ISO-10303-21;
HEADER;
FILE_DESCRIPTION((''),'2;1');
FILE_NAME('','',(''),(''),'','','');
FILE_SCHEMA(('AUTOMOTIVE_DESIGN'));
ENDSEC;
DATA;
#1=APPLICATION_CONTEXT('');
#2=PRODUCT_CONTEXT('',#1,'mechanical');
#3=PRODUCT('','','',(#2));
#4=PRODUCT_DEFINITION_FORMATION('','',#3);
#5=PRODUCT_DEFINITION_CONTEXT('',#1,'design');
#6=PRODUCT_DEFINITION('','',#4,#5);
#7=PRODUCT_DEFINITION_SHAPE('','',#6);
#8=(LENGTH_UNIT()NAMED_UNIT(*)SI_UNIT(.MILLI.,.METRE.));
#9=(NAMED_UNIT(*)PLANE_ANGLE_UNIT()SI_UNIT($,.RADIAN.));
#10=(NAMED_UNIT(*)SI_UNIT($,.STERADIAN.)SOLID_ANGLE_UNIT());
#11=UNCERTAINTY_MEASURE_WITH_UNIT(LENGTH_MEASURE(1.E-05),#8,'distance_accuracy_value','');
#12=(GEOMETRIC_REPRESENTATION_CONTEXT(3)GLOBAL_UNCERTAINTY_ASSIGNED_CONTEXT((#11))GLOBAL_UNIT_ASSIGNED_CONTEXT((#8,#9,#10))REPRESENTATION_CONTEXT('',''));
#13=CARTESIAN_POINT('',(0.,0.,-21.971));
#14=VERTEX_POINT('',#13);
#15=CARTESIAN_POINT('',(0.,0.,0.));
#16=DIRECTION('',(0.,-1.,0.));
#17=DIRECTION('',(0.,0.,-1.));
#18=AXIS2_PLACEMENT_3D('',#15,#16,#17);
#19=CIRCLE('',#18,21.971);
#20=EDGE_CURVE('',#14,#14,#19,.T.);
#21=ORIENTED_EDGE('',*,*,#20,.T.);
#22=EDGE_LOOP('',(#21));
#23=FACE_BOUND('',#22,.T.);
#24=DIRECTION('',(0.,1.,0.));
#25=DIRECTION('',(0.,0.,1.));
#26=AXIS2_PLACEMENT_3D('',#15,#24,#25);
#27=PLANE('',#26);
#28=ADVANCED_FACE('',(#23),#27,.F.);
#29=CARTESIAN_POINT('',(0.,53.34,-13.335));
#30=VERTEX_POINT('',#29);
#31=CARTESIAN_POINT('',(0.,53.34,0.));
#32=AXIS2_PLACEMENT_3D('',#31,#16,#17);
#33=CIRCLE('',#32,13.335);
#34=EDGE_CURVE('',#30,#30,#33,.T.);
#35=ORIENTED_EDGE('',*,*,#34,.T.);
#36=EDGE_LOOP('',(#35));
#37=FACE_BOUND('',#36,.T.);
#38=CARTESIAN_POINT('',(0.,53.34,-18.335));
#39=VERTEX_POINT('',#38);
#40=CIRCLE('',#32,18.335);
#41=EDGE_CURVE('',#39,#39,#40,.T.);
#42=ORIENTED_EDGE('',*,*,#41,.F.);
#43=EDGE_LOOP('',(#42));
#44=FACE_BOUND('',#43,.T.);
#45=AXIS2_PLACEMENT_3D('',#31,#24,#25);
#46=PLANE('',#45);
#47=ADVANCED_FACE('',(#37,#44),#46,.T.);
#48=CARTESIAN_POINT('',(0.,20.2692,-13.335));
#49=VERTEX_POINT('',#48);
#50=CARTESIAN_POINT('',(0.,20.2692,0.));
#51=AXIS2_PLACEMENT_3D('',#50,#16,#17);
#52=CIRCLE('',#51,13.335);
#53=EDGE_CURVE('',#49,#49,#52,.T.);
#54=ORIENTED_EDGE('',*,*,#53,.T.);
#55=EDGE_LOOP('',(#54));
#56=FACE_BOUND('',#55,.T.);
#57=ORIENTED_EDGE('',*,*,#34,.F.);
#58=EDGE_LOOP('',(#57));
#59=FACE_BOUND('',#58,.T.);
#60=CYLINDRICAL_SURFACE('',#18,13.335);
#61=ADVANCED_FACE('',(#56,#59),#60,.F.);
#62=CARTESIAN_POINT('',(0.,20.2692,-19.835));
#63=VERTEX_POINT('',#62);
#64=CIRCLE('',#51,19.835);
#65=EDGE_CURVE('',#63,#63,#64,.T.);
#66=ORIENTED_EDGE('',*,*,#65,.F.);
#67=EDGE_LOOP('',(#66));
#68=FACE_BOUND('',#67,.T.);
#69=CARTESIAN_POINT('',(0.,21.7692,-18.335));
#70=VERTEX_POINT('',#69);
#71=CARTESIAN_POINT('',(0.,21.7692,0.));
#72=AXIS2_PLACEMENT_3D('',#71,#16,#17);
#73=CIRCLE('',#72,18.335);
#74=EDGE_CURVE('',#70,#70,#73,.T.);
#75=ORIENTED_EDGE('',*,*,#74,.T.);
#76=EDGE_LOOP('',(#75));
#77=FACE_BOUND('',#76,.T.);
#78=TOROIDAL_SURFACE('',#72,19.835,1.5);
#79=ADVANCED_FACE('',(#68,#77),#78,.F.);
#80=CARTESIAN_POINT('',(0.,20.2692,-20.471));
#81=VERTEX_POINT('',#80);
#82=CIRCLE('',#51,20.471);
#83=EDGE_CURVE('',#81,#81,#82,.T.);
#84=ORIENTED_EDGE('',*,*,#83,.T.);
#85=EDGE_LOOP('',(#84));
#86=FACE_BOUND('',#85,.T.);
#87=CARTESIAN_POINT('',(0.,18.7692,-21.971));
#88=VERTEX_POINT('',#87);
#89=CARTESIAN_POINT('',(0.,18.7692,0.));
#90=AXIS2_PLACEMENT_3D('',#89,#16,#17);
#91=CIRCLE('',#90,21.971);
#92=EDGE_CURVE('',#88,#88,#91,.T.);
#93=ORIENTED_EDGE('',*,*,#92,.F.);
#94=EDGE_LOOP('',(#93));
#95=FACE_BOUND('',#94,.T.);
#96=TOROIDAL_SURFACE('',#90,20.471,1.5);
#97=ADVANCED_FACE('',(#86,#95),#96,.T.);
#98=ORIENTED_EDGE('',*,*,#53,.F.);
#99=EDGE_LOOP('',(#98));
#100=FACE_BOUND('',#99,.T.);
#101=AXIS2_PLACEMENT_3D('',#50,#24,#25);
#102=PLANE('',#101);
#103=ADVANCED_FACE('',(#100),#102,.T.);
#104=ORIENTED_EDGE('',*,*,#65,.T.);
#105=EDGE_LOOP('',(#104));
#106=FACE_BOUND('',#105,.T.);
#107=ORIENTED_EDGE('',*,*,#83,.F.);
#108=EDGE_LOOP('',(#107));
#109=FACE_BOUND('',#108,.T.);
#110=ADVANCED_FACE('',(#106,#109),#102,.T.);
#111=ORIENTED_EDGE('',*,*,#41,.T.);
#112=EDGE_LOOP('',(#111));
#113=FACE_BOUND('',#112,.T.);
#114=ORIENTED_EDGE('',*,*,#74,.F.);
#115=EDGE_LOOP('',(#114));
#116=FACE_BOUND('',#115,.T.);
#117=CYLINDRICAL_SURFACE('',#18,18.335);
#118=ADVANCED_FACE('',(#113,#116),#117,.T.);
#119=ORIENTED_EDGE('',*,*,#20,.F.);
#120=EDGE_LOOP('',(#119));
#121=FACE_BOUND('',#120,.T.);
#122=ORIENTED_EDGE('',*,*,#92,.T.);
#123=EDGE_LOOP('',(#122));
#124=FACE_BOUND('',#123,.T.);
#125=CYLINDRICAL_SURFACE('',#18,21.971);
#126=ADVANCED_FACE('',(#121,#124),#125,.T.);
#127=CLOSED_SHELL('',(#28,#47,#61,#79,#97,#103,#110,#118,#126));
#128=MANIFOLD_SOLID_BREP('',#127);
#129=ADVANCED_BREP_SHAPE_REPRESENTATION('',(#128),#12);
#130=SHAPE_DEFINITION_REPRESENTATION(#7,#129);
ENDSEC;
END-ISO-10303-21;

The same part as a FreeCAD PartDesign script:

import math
import FreeCAD as App
import Part
import Sketcher

V = App.Vector
Q = App.Units.Quantity

doc = App.newDocument("Part")
body = doc.addObject("PartDesign::Body", "Body")

# Sketch on XY plane
sketch1 = doc.addObject("Sketcher::SketchObject", "Sketch")
body.addObject(sketch1)
sketch1.AttachmentSupport = (doc.XY_Plane, [""])
sketch1.MapMode = "FlatFace"
sketch1.addGeometry([
    Part.LineSegment(V(0, 20.3, 0), V(-13.3, 20.3, 0)),  # 0
    Part.LineSegment(V(-13.3, 20.3, 0), V(-13.3, 53.3, 0)),  # 1
    Part.LineSegment(V(-13.3, 53.3, 0), V(-18.3, 53.3, 0)),  # 2
    Part.LineSegment(V(-18.3, 53.3, 0), V(-18.3, 21.8, 0)),  # 3
    Part.ArcOfCircle(Part.Circle(V(-19.8, 21.8, 0), V(0, 0, 1), 1.5), math.radians(-90), math.radians(0)),  # 4
    Part.LineSegment(V(-19.8, 20.3, 0), V(-20.5, 20.3, 0)),  # 5
    Part.ArcOfCircle(Part.Circle(V(-20.5, 18.8, 0), V(0, 0, 1), 1.5), math.radians(90), math.radians(180)),  # 6
    Part.LineSegment(V(-22, 18.8, 0), V(-22, 0, 0)),  # 7
    Part.LineSegment(V(-22, 0, 0), V(0, 0, 0)),  # 8
    Part.LineSegment(V(0, 0, 0), V(0, 20.3, 0)),  # 9
], False)
sketch1.addConstraint([
    Sketcher.Constraint("Coincident", 0, 2, 1, 1),
    Sketcher.Constraint("Coincident", 1, 2, 2, 1),
    Sketcher.Constraint("Coincident", 2, 2, 3, 1),
    Sketcher.Constraint("Tangent", 3, 2, 4, 2),
    Sketcher.Constraint("Tangent", 4, 1, 5, 1),
    Sketcher.Constraint("Tangent", 5, 2, 6, 1),
    Sketcher.Constraint("Tangent", 6, 2, 7, 1),
    Sketcher.Constraint("Coincident", 7, 2, 8, 1),
    Sketcher.Constraint("Coincident", 8, 2, 9, 1),
    Sketcher.Constraint("Coincident", 9, 2, 0, 1),
    Sketcher.Constraint("Horizontal", 0),
    Sketcher.Constraint("Vertical", 1),
    Sketcher.Constraint("Horizontal", 2),
    Sketcher.Constraint("Vertical", 3),
    Sketcher.Constraint("Horizontal", 5),
    Sketcher.Constraint("Vertical", 7),
    Sketcher.Constraint("Horizontal", 8),
    Sketcher.Constraint("Vertical", 9),
    Sketcher.Constraint("Coincident", 8, 2, -1, 1),
    Sketcher.Constraint("Equal", 4, 6),
    Sketcher.Constraint("Horizontal", 0, 2, 4, 1),
    Sketcher.Constraint("DistanceY", -1, 1, 1, 2, Q("2.1 in")),
    Sketcher.Constraint("DistanceX", 0, 2, 0, 1, Q("0.525 in")),
    Sketcher.Constraint("DistanceX", 8, 1, 8, 2, Q("0.865 in")),
    Sketcher.Constraint("DistanceY", 1, 1, 1, 2, Q("1.302 in")),
    Sketcher.Constraint("Radius", 4, Q("1.5 mm")),
    Sketcher.Constraint("DistanceX", 2, 2, 2, 1, Q("5 mm")),
])
revolution = doc.addObject("PartDesign::Revolution", "Revolution")
body.addObject(revolution)
revolution.Profile = sketch1
revolution.ReferenceAxis = (sketch1, ["V_Axis"])
revolution.Angle = 360

doc.recompute()
